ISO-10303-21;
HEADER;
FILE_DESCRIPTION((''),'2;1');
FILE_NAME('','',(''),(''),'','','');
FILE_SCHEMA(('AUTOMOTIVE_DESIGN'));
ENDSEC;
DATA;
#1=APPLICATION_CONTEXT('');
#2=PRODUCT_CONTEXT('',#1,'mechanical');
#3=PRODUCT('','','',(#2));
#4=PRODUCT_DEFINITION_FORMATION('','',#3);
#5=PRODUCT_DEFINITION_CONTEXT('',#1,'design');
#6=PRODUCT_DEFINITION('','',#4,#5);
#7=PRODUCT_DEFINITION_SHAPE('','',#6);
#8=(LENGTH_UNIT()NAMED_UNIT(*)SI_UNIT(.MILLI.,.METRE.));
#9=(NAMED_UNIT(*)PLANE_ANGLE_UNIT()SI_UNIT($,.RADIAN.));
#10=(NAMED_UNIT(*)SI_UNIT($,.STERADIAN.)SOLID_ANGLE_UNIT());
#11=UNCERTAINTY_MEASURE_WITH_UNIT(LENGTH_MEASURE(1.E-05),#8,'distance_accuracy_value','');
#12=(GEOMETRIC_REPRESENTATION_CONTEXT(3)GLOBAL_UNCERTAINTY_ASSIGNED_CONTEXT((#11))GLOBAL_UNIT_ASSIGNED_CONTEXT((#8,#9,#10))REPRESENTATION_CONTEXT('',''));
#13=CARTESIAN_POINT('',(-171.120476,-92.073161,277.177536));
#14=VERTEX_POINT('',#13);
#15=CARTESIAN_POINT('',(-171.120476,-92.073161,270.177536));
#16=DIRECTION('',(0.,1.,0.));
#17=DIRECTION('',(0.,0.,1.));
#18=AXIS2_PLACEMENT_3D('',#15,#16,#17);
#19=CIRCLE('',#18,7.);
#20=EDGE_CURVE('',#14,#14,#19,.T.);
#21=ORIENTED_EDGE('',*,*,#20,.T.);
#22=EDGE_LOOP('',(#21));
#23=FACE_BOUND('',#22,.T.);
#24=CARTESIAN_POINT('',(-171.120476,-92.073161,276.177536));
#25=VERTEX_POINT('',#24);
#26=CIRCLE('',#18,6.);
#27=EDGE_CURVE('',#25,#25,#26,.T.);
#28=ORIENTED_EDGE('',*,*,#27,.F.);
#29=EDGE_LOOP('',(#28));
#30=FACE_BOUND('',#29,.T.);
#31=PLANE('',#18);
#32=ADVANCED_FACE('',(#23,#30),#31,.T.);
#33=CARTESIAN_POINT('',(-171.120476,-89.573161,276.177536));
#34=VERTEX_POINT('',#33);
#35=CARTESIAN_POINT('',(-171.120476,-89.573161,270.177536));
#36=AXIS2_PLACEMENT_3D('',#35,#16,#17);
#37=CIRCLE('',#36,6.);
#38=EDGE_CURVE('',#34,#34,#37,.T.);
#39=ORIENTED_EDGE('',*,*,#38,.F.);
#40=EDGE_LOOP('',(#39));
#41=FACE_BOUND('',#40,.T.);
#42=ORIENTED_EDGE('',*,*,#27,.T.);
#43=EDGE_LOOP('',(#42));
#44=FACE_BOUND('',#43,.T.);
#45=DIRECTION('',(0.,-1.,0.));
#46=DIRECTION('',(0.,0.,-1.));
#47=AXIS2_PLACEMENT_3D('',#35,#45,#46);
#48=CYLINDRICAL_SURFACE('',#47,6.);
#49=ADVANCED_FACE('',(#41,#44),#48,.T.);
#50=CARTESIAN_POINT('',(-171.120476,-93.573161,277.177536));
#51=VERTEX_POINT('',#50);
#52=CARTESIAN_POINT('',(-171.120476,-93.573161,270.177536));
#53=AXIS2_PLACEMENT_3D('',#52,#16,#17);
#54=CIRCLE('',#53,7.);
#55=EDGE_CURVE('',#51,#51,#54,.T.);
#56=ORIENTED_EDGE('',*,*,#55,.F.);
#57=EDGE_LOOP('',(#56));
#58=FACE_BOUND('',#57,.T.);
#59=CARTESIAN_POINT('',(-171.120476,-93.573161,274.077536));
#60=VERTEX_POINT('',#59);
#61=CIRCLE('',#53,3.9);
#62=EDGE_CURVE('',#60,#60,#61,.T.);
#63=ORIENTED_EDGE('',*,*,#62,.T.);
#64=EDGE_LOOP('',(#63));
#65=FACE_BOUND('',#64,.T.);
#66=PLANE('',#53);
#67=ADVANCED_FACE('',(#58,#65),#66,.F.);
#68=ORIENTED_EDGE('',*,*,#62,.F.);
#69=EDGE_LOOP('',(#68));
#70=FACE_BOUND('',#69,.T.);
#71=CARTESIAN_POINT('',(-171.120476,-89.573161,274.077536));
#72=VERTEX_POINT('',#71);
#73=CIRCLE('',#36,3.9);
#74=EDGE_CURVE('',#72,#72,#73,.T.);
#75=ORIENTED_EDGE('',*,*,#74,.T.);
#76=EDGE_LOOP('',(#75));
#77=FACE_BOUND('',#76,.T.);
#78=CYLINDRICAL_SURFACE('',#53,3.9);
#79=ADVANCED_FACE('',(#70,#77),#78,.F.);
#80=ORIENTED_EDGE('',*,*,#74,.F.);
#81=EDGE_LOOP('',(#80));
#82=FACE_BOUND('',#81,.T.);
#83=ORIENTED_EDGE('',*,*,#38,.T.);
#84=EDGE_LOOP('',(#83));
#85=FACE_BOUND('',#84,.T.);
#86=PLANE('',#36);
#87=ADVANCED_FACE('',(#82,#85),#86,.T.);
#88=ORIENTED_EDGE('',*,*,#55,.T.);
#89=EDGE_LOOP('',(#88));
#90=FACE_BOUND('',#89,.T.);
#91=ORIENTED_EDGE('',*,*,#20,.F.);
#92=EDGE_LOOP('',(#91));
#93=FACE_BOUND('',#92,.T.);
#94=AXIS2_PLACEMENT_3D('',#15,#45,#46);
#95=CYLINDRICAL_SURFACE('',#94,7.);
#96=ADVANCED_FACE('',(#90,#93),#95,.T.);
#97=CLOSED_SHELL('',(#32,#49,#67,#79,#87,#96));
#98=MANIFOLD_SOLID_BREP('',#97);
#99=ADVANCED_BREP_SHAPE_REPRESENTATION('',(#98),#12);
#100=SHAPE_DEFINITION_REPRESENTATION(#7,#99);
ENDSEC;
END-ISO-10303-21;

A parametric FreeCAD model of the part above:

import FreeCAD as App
import Part
import Sketcher
from FreeCAD import Vector
Q = App.Units.Quantity

doc = App.newDocument("Part")
body = doc.addObject("PartDesign::Body", "Body")

# Sketch on XZ plane
sketch1 = body.newObject("Sketcher::SketchObject", "Sketch")
sketch1.AttachmentSupport = (doc.getObject("XZ_Plane"), [""])
sketch1.MapMode = "FlatFace"
sketch1.addGeometry(Part.Circle(Vector(0, 0, 0), Vector(0, 0, 1), 7), False)
sketch1.addConstraint(Sketcher.Constraint("Coincident", 0, 3, -1, 1))
sketch1.addConstraint(Sketcher.Constraint("Diameter", 0, Q("14 mm")))
pad1 = body.newObject("PartDesign::Pad", "Pad")
pad1.Profile = sketch1
pad1.Length = 1.5
pad1.Reversed = True

# Sketch on XZ plane
sketch2 = body.newObject("Sketcher::SketchObject", "Sketch001")
sketch2.AttachmentSupport = (doc.getObject("XZ_Plane"), [""])
sketch2.MapMode = "FlatFace"
sketch2.AttachmentOffset = App.Placement(Vector(0, 0, -1.5), App.Rotation())
sketch2.addGeometry(Part.Circle(Vector(0, 0, 0), Vector(0, 0, 1), 6), False)
sketch2.addConstraint(Sketcher.Constraint("Coincident", 0, 3, -1, 1))
sketch2.addConstraint(Sketcher.Constraint("Diameter", 0, Q("12 mm")))
pad2 = body.newObject("PartDesign::Pad", "Pad001")
pad2.Profile = sketch2
pad2.Length = 2.5
pad2.Reversed = True

# Sketch on XZ plane
sketch3 = body.newObject("Sketcher::SketchObject", "Sketch002")
sketch3.AttachmentSupport = (doc.getObject("XZ_Plane"), [""])
sketch3.MapMode = "FlatFace"
sketch3.AttachmentOffset = App.Placement(Vector(0, 0, -4), App.Rotation())
sketch3.addGeometry(Part.Circle(Vector(0, 0, 0), Vector(0, 0, 1), 3.9), False)
sketch3.addConstraint(Sketcher.Constraint("Coincident", 0, 3, -1, 1))
sketch3.addConstraint(Sketcher.Constraint("Diameter", 0, Q("7.8 mm")))
pocket1 = body.newObject("PartDesign::Pocket", "Pocket")
pocket1.Profile = sketch3
pocket1.Type = "ThroughAll"
pocket1.Reversed = True
body2 = doc.addObject("PartDesign::Body", "Body001")
doc.recompute()

body.Placement = App.Placement(Vector(-171.120476, -93.573161, 270.177536), App.Rotation(Vector(0, 0, 1), 0))
boolean = body2.newObject("PartDesign::Boolean", "Boolean")
boolean.Type = "Fuse"
boolean.addObjects([body])

doc.recompute()
